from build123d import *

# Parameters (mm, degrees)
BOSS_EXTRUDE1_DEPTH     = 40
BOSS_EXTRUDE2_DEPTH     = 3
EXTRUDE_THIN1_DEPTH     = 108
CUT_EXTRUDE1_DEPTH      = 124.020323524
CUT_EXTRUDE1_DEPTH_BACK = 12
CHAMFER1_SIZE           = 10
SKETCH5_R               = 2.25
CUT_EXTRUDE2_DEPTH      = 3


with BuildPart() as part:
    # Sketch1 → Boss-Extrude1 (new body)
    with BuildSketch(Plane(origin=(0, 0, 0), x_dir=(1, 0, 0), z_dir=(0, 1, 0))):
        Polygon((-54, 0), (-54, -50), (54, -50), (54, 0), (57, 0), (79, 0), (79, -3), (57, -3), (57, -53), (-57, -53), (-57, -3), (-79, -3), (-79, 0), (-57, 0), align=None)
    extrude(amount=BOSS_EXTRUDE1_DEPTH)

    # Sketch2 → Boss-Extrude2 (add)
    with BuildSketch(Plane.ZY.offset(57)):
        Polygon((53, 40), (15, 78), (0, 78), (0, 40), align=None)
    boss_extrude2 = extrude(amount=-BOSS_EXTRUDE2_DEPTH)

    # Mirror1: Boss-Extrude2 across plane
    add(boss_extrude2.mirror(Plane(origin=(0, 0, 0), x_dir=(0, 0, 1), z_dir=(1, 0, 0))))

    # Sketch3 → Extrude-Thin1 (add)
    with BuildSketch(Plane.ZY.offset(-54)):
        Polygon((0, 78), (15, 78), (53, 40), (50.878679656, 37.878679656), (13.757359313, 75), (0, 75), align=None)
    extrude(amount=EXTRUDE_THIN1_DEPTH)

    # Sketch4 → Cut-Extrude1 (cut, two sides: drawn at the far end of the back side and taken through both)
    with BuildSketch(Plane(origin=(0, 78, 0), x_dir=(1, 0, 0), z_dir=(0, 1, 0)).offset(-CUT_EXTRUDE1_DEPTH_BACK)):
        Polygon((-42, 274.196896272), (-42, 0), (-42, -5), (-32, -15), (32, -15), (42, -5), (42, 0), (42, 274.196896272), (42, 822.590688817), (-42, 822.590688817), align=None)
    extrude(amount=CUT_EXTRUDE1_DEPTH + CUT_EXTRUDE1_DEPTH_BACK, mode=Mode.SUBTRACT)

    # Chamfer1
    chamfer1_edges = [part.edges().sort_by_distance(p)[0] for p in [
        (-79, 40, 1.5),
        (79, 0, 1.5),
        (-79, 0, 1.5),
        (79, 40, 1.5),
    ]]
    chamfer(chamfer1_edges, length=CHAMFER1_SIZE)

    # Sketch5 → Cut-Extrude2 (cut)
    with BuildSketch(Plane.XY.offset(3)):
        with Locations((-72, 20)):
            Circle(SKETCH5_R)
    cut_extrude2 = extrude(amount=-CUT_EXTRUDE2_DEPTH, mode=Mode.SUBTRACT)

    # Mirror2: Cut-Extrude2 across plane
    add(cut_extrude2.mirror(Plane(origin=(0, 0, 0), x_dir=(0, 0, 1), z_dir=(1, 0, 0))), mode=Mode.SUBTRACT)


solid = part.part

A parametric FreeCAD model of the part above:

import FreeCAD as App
import Part
import Sketcher
Q = App.Units.Quantity


def edges_at(feature, points):
    """Names of the edges that pass closest to the given points."""
    edges = feature.Shape.Edges
    near = lambda p: min(range(len(edges)), key=lambda i: edges[i].distToShape(Part.Vertex(*p))[0])
    return sorted({f"Edge{near(p) + 1}" for p in points})

doc = App.newDocument("Part")
body = doc.addObject("PartDesign::Body", "Body")

sketch1 = body.newObject("Sketcher::SketchObject", "Sketch")
sketch1.AttachmentSupport = (doc.getObject("XZ_Plane"), [""])
sketch1.MapMode = "FlatFace"
sketch1.addGeometry([
    Part.LineSegment(App.Vector(-54, 50, 0), App.Vector(-54, 0, 0)),
    Part.LineSegment(App.Vector(-54, 0, 0), App.Vector(-79, 0, 0)),
    Part.LineSegment(App.Vector(-79, 0, 0), App.Vector(-79, 3, 0)),
    Part.LineSegment(App.Vector(-79, 3, 0), App.Vector(-57, 3, 0)),
    Part.LineSegment(App.Vector(-57, 3, 0), App.Vector(-57, 53, 0)),
    Part.LineSegment(App.Vector(-57, 53, 0), App.Vector(57, 53, 0)),
    Part.LineSegment(App.Vector(57, 53, 0), App.Vector(57, 3, 0)),
    Part.LineSegment(App.Vector(57, 3, 0), App.Vector(79, 3, 0)),
    Part.LineSegment(App.Vector(79, 3, 0), App.Vector(79, 0, 0)),
    Part.LineSegment(App.Vector(79, 0, 0), App.Vector(54, 0, 0)),
    Part.LineSegment(App.Vector(54, 0, 0), App.Vector(54, 50, 0)),
    Part.LineSegment(App.Vector(54, 50, 0), App.Vector(-54, 50, 0)),
], False)
sketch1.addConstraint([
    Sketcher.Constraint("Coincident", 0, 2, 1, 1),
    Sketcher.Constraint("Coincident", 1, 2, 2, 1),
    Sketcher.Constraint("Coincident", 2, 2, 3, 1),
    Sketcher.Constraint("Coincident", 3, 2, 4, 1),
    Sketcher.Constraint("Coincident", 4, 2, 5, 1),
    Sketcher.Constraint("Coincident", 5, 2, 6, 1),
    Sketcher.Constraint("Coincident", 6, 2, 7, 1),
    Sketcher.Constraint("Coincident", 7, 2, 8, 1),
    Sketcher.Constraint("Coincident", 8, 2, 9, 1),
    Sketcher.Constraint("Coincident", 9, 2, 10, 1),
    Sketcher.Constraint("Coincident", 10, 2, 11, 1),
    Sketcher.Constraint("Coincident", 11, 2, 0, 1),
    Sketcher.Constraint("Vertical", 0),
    Sketcher.Constraint("Horizontal", 1),
    Sketcher.Constraint("Vertical", 2),
    Sketcher.Constraint("Horizontal", 3),
    Sketcher.Constraint("Vertical", 4),
    Sketcher.Constraint("Horizontal", 5),
    Sketcher.Constraint("Vertical", 6),
    Sketcher.Constraint("Horizontal", 7),
    Sketcher.Constraint("Vertical", 8),
    Sketcher.Constraint("Horizontal", 9),
    Sketcher.Constraint("Vertical", 10),
    Sketcher.Constraint("Horizontal", 11),
    Sketcher.Constraint("Symmetric", 1, 2, 8, 2, -1, 1),
    Sketcher.Constraint("Symmetric", 3, 2, 6, 2, -2),
    Sketcher.Constraint("Symmetric", 0, 2, 9, 2, -2),
    Sketcher.Constraint("Equal", 0, 4),
    Sketcher.Constraint("DistanceX", 1, 2, 1, 1, Q("25 mm")),
    Sketcher.Constraint("DistanceX", 3, 1, 3, 2, Q("22 mm")),
    Sketcher.Constraint("DistanceX", 5, 1, 5, 2, Q("114 mm")),
    Sketcher.Constraint("DistanceY", 0, 2, 0, 1, Q("50 mm")),
    Sketcher.Constraint("DistanceY", 2, 1, 2, 2, Q("3 mm")),
])
pad1 = body.newObject("PartDesign::Pad", "Pad")
pad1.Profile = sketch1
pad1.Length = 40
pad1.Reversed = True

sketch2 = body.newObject("Sketcher::SketchObject", "Sketch001")
sketch2.AttachmentSupport = (doc.getObject("YZ_Plane"), [""])
sketch2.MapMode = "FlatFace"
sketch2.AttachmentOffset = App.Placement(App.Vector(0, 0, -57), App.Rotation())
sketch2.addGeometry([
    Part.LineSegment(App.Vector(40, 53, 0), App.Vector(78, 15, 0)),
    Part.LineSegment(App.Vector(78, 15, 0), App.Vector(78, 0, 0)),
    Part.LineSegment(App.Vector(78, 0, 0), App.Vector(40, 0, 0)),
    Part.LineSegment(App.Vector(40, 0, 0), App.Vector(40, 53, 0)),
], False)
sketch2.addConstraint([
    Sketcher.Constraint("Coincident", 0, 2, 1, 1),
    Sketcher.Constraint("Coincident", 1, 2, 2, 1),
    Sketcher.Constraint("Coincident", 2, 2, 3, 1),
    Sketcher.Constraint("Coincident", 3, 2, 0, 1),
    Sketcher.Constraint("Vertical", 1),
    Sketcher.Constraint("Horizontal", 2),
    Sketcher.Constraint("Vertical", 3),
    Sketcher.Constraint("PointOnObject", 1, 2, -1),
    Sketcher.Constraint("DistanceX", 2, 2, 2, 1, Q("38 mm")),
    Sketcher.Constraint("DistanceY", 1, 2, 1, 1, Q("15 mm")),
    Sketcher.Constraint("DistanceY", 3, 1, 3, 2, Q("53 mm")),
    Sketcher.Constraint("DistanceX", -1, 1, 0, 2, Q("78 mm")),
])
pad2 = body.newObject("PartDesign::Pad", "Pad001")
pad2.Profile = sketch2
pad2.Length = 3
doc.recompute()

mirrored = body.newObject("PartDesign::Mirrored", "Mirrored")
mirrored.Originals = [pad2]
mirrored.MirrorPlane = (doc.getObject("YZ_Plane"), [""])
body.Tip = mirrored

sketch3 = body.newObject("Sketcher::SketchObject", "Sketch002")
sketch3.AttachmentSupport = (doc.getObject("YZ_Plane"), [""])
sketch3.MapMode = "FlatFace"
sketch3.AttachmentOffset = App.Placement(App.Vector(0, 0, 54), App.Rotation())
sketch3.addGeometry([
    Part.LineSegment(App.Vector(78, 15, 0), App.Vector(78, 0, 0)),
    Part.LineSegment(App.Vector(78, 0, 0), App.Vector(75, 0, 0)),
    Part.LineSegment(App.Vector(75, 0, 0), App.Vector(75, 13.8, 0)),
    Part.LineSegment(App.Vector(75, 13.8, 0), App.Vector(37.9, 50.9, 0)),
    Part.LineSegment(App.Vector(37.9, 50.9, 0), App.Vector(40, 53, 0)),
    Part.LineSegment(App.Vector(40, 53, 0), App.Vector(78, 15, 0)),
], False)
sketch3.addConstraint([
    Sketcher.Constraint("Coincident", 0, 2, 1, 1),
    Sketcher.Constraint("Coincident", 1, 2, 2, 1),
    Sketcher.Constraint("Coincident", 2, 2, 3, 1),
    Sketcher.Constraint("Coincident", 3, 2, 4, 1),
    Sketcher.Constraint("Coincident", 4, 2, 5, 1),
    Sketcher.Constraint("Coincident", 5, 2, 0, 1),
    Sketcher.Constraint("Vertical", 0),
    Sketcher.Constraint("Horizontal", 1),
    Sketcher.Constraint("Vertical", 2),
    Sketcher.Constraint("PointOnObject", 0, 2, -1),
    Sketcher.Constraint("Perpendicular", 3, 4),
    Sketcher.Constraint("Perpendicular", 4, 5),
    Sketcher.Constraint("DistanceX", 1, 2, 1, 1, Q("3 mm")),
    Sketcher.Constraint("DistanceY", 0, 2, 0, 1, Q("15 mm")),
    Sketcher.Constraint("Angle", 3, Q("135 deg")),
    Sketcher.Constraint("Distance", 4, Q("3 mm")),
    Sketcher.Constraint("DistanceX", -1, 1, 0, 2, Q("78 mm")),
    Sketcher.Constraint("DistanceX", -1, 1, 4, 2, Q("40 mm")),
])
pad3 = body.newObject("PartDesign::Pad", "Pad002")
pad3.Profile = sketch3
pad3.Length = 108
pad3.Reversed = True

sketch4 = body.newObject("Sketcher::SketchObject", "Sketch003")
sketch4.AttachmentSupport = (doc.getObject("XZ_Plane"), [""])
sketch4.MapMode = "FlatFace"
sketch4.AttachmentOffset = App.Placement(App.Vector(0, 0, -78), App.Rotation())
sketch4.addGeometry([
    Part.LineSegment(App.Vector(-42, 5, 0), App.Vector(-32, 15, 0)),
    Part.LineSegment(App.Vector(-32, 15, 0), App.Vector(32, 15, 0)),
    Part.LineSegment(App.Vector(32, 15, 0), App.Vector(42, 5, 0)),
    Part.LineSegment(App.Vector(42, 5, 0), App.Vector(42, -823, 0)),
    Part.LineSegment(App.Vector(42, -823, 0), App.Vector(-42, -823, 0)),
    Part.LineSegment(App.Vector(-42, -823, 0), App.Vector(-42, 5, 0)),
], False)
sketch4.addConstraint([
    Sketcher.Constraint("Coincident", 0, 2, 1, 1),
    Sketcher.Constraint("Coincident", 1, 2, 2, 1),
    Sketcher.Constraint("Coincident", 2, 2, 3, 1),
    Sketcher.Constraint("Coincident", 3, 2, 4, 1),
    Sketcher.Constraint("Coincident", 4, 2, 5, 1),
    Sketcher.Constraint("Coincident", 5, 2, 0, 1),
    Sketcher.Constraint("Horizontal", 1),
    Sketcher.Constraint("Vertical", 3),
    Sketcher.Constraint("Horizontal", 4),
    Sketcher.Constraint("Vertical", 5),
    Sketcher.Constraint("Symmetric", 2, 2, 5, 2, -2),
    Sketcher.Constraint("Perpendicular", 0, 2),
    Sketcher.Constraint("Equal", 0, 2),
    Sketcher.Constraint("DistanceX", 1, 1, 1, 2, Q("64 mm")),
    Sketcher.Constraint("DistanceX", 4, 2, 4, 1, Q("84 mm")),
    Sketcher.Constraint("DistanceY", -1, 1, 0, 2, Q("15 mm")),
    Sketcher.Constraint("DistanceY", 3, 2, 3, 1, Q("827.590689 mm")),
])
pocket1 = body.newObject("PartDesign::Pocket", "Pocket")
pocket1.Profile = sketch4
pocket1.Type = "ThroughAll"
pocket1.Midplane = True
doc.recompute()

chamfer = body.newObject("PartDesign::Chamfer", "Chamfer")
chamfer.Base = (pocket1, edges_at(pocket1, [
    (-79, 40, 1.5),
    (79, 0, 1.5),
    (-79, 0, 1.5),
    (79, 40, 1.5),
]))
chamfer.Size = 10

sketch5 = body.newObject("Sketcher::SketchObject", "Sketch004")
sketch5.AttachmentSupport = (doc.getObject("XY_Plane"), [""])
sketch5.MapMode = "FlatFace"
sketch5.AttachmentOffset = App.Placement(App.Vector(0, 0, 3), App.Rotation())
sketch5.addGeometry(Part.Circle(App.Vector(-72, 20, 0), App.Vector(0, 0, 1), 2.2), False)
sketch5.addConstraint([
    Sketcher.Constraint("Diameter", 0, Q("4.5 mm")),
    Sketcher.Constraint("DistanceX", 0, 3, -1, 1, Q("72 mm")),
    Sketcher.Constraint("DistanceY", -1, 1, 0, 3, Q("20 mm")),
])
pocket2 = body.newObject("PartDesign::Pocket", "Pocket001")
pocket2.Profile = sketch5
pocket2.Length = 3
doc.recompute()

mirrored2 = body.newObject("PartDesign::Mirrored", "Mirrored001")
mirrored2.Originals = [pocket2]
mirrored2.MirrorPlane = (doc.getObject("YZ_Plane"), [""])
body.Tip = mirrored2

doc.recompute()
